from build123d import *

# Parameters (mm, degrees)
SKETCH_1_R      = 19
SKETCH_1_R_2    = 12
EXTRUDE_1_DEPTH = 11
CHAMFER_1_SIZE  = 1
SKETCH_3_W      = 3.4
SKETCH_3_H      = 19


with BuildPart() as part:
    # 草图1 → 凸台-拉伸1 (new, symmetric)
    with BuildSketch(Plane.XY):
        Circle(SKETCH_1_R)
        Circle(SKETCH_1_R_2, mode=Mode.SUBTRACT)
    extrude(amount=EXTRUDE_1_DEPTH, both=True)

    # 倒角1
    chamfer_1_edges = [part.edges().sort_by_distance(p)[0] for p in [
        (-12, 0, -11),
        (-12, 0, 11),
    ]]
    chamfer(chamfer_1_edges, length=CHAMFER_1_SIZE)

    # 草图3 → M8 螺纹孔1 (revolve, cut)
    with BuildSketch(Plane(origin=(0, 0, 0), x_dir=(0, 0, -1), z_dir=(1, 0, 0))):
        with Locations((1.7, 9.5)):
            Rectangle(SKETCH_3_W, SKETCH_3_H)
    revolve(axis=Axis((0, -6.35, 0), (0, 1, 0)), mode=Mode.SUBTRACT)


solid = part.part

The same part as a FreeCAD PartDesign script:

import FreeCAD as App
import Part
import Sketcher
from FreeCAD import Vector


def edges_at(feature, points):
    """Names of the edges that pass closest to the given points."""
    edges = feature.Shape.Edges
    near = lambda p: min(range(len(edges)), key=lambda i: edges[i].distToShape(Part.Vertex(*p))[0])
    return sorted({f"Edge{near(p) + 1}" for p in points})


def add_polygon(sketch, points):
    """Adds a closed chain of lines whose ends are joined by coincident constraints."""
    first, n = sketch.GeometryCount, len(points)
    for a, b in zip(points, points[1:] + points[:1]):
        sketch.addGeometry(Part.LineSegment(App.Vector(*a, 0), App.Vector(*b, 0)), False)
    for i in range(n):
        sketch.addConstraint(Sketcher.Constraint("Coincident", first + i, 2, first + (i + 1) % n, 1))

doc = App.newDocument("Part")
body = doc.addObject("PartDesign::Body", "Body")

# Sketch on XY plane
sketch1 = body.newObject("Sketcher::SketchObject", "Sketch")
sketch1.AttachmentSupport = (doc.getObject("XY_Plane"), [""])
sketch1.MapMode = "FlatFace"
sketch1.addGeometry(Part.Circle(Vector(0, 0, 0), Vector(0, 0, 1), 19), False)
sketch1.addGeometry(Part.Circle(Vector(0, 0, 0), Vector(0, 0, 1), 12), False)
sketch1.addConstraint(Sketcher.Constraint("Coincident", 0, 3, -1, 1))
sketch1.addConstraint(Sketcher.Constraint("Coincident", 1, 3, -1, 1))
sketch1.addConstraint(Sketcher.Constraint("Diameter", 0, 38.0))
sketch1.addConstraint(Sketcher.Constraint("Diameter", 1, 24.0))
pad1 = body.newObject("PartDesign::Pad", "Pad")
pad1.Profile = sketch1
pad1.Length = 22
pad1.Midplane = True
doc.recompute()

chamfer = body.newObject("PartDesign::Chamfer", "Chamfer")
chamfer.Base = (pad1, edges_at(pad1, [(-12, 0, -11), (-12, 0, 11)]))
chamfer.Size = 1

# Sketch on YZ plane
sketch2 = body.newObject("Sketcher::SketchObject", "Sketch001")
sketch2.AttachmentSupport = (doc.getObject("YZ_Plane"), [""])
sketch2.MapMode = "FlatFace"
add_polygon(sketch2, [(19, 0), (0, 0), (0, -3.4), (19, -3.4)])  # lines 0-3
sketch2.addConstraint(Sketcher.Constraint("Horizontal", 0))
sketch2.addConstraint(Sketcher.Constraint("Vertical", 1))
sketch2.addConstraint(Sketcher.Constraint("Horizontal", 2))
sketch2.addConstraint(Sketcher.Constraint("Vertical", 3))
sketch2.addConstraint(Sketcher.Constraint("Coincident", 0, 2, -1, 1))
sketch2.addConstraint(Sketcher.Constraint("DistanceX", 0, 2, 0, 1, 19.0))
sketch2.addConstraint(Sketcher.Constraint("DistanceY", 1, 2, 1, 1, 3.4))
groove = body.newObject("PartDesign::Groove", "Groove")
groove.Profile = sketch2
groove.ReferenceAxis = (sketch2, ["H_Axis"])
groove.Angle = 360

doc.recompute()
